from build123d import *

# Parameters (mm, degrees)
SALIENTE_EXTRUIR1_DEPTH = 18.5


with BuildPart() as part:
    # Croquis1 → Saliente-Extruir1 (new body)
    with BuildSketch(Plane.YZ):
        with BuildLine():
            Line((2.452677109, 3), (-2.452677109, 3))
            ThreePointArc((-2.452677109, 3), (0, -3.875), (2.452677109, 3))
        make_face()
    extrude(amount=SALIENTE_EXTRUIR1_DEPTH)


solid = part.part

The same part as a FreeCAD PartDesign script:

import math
import FreeCAD as App
import Part
import Sketcher
Q = App.Units.Quantity

doc = App.newDocument("Part")
body = doc.addObject("PartDesign::Body", "Body")

# Sketch on YZ plane
sketch1 = body.newObject("Sketcher::SketchObject", "Sketch")
sketch1.AttachmentSupport = (doc.getObject("YZ_Plane"), [""])
sketch1.MapMode = "FlatFace"
sketch1.addGeometry([
    Part.LineSegment(App.Vector(2.452677, 3, 0), App.Vector(-2.452677, 3, 0)),
    Part.ArcOfCircle(Part.Circle(App.Vector(0, 0, 0), App.Vector(0, 0, 1), 3.875), math.radians(129.268026), math.radians(410.731974)),
], False)
sketch1.addConstraint([
    Sketcher.Constraint("Coincident", 0, 1, 1, 2),
    Sketcher.Constraint("Coincident", 1, 1, 0, 2),
    Sketcher.Constraint("Horizontal", 0),
    Sketcher.Constraint("Coincident", 1, 3, -1, 1),
    Sketcher.Constraint("DistanceY", -1, 1, 0, 1, Q("3 mm")),
    Sketcher.Constraint("Radius", 1, Q("3.875 mm")),
])
pad1 = body.newObject("PartDesign::Pad", "Pad")
pad1.Profile = sketch1
pad1.Length = 18.5

doc.recompute()
